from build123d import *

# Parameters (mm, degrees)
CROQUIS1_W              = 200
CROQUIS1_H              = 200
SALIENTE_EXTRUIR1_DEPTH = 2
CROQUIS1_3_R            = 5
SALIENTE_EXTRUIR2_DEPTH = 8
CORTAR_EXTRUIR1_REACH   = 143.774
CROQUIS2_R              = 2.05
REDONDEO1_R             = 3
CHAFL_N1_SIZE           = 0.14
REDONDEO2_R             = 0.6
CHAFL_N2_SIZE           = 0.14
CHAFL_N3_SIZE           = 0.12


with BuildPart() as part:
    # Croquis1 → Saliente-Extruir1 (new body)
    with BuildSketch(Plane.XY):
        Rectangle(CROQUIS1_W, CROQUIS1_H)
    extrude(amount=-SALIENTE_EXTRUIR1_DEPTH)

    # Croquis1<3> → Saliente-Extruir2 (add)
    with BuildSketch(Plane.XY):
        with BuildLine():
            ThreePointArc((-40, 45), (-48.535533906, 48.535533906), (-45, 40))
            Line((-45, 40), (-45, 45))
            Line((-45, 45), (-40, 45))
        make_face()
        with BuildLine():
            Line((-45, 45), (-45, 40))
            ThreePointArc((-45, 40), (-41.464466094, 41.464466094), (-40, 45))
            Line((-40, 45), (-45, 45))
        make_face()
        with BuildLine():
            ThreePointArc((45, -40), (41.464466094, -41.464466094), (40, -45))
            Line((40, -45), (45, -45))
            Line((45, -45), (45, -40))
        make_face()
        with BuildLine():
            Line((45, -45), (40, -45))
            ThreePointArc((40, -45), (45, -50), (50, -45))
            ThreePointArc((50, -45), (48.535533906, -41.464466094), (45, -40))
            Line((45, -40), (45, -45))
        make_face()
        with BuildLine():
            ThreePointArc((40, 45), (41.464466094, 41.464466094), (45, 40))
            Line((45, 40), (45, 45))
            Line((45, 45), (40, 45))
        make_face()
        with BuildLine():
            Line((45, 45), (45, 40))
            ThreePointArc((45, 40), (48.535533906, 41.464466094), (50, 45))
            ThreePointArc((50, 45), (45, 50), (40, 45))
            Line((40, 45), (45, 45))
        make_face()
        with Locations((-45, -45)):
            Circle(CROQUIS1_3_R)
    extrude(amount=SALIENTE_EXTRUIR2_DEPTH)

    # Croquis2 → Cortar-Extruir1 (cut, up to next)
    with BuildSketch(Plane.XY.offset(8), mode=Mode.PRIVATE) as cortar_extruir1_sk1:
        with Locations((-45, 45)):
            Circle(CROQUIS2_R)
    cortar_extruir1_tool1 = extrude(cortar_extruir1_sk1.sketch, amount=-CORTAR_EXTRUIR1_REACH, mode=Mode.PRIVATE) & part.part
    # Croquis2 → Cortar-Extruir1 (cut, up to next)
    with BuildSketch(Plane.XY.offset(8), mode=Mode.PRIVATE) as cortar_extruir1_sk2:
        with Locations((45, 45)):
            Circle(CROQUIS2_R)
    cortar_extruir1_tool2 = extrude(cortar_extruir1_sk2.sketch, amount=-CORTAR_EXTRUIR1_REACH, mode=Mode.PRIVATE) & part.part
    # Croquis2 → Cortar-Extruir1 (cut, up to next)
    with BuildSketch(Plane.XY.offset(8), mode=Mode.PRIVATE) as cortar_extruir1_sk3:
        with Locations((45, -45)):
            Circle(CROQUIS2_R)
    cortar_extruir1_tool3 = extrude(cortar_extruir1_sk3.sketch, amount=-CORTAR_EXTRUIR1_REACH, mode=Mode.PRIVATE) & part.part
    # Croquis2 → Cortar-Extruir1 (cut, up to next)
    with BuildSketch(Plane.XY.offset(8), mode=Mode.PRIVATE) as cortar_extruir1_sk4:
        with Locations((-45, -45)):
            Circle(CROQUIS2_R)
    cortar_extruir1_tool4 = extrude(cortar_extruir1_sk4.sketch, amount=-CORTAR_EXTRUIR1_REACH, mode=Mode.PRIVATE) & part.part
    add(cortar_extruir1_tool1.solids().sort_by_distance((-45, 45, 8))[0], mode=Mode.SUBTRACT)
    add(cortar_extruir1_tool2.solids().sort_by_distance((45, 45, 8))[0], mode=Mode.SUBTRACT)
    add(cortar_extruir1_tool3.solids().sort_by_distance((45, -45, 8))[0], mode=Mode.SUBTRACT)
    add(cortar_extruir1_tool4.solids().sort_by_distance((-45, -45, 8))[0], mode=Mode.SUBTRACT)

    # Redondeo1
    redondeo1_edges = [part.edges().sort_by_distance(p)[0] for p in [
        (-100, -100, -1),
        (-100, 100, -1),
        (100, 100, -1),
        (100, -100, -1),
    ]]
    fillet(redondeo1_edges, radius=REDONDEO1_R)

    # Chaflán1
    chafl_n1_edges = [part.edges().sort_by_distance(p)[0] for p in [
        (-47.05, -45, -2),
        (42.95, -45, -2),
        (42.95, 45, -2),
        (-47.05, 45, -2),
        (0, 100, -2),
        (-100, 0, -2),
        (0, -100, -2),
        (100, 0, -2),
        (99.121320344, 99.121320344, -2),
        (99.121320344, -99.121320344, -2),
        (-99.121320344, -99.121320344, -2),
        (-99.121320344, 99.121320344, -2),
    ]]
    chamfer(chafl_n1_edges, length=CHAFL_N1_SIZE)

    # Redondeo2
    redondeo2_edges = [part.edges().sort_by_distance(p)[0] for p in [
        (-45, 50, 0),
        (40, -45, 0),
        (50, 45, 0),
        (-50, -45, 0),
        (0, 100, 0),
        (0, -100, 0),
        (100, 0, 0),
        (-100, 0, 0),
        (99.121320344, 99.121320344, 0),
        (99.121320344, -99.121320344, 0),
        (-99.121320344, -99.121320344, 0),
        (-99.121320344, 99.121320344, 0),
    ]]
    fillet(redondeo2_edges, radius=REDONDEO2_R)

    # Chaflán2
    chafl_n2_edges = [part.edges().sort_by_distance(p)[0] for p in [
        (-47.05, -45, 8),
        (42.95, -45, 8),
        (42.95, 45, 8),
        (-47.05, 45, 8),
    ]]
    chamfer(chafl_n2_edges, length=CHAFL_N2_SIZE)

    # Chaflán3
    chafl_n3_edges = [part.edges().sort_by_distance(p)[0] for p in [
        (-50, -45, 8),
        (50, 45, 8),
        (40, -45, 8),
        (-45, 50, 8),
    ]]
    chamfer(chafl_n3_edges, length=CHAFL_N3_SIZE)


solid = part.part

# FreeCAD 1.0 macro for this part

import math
import FreeCAD as App
import Part
import Sketcher

V = App.Vector
Q = App.Units.Quantity


def edges_at(feature, points):
    """Names of the edges that pass closest to the given points."""
    edges = feature.Shape.Edges
    near = lambda p: min(range(len(edges)), key=lambda i: edges[i].distToShape(Part.Vertex(*p))[0])
    return sorted({f"Edge{near(p) + 1}" for p in points})


def add_polygon(sketch, points):
    """Adds a closed chain of lines whose ends are joined by coincident constraints."""
    first, n = sketch.GeometryCount, len(points)
    for a, b in zip(points, points[1:] + points[:1]):
        sketch.addGeometry(Part.LineSegment(App.Vector(*a, 0), App.Vector(*b, 0)), False)
    for i in range(n):
        sketch.addConstraint(Sketcher.Constraint("Coincident", first + i, 2, first + (i + 1) % n, 1))

doc = App.newDocument("Part")
params = doc.addObject("Spreadsheet::Sheet", "Params")
for row, (alias, value) in enumerate([
    ("sketch1_width", "200 mm"),
    ("pad1_length", "2 mm"),
    ("sketch2_diameter", "10 mm"),
    ("pad2_length", "8 mm"),
    ("sketch3_diameter", "4.1 mm"),
    ("sketch4_diameter", "4.1 mm"),
    ("sketch5_diameter", "4.1 mm"),
    ("sketch6_diameter", "4.1 mm"),
    ("fillet_radius", "3 mm"),
    ("chamfer_size", "0.14 mm"),
    ("fillet2_radius", "0.6 mm"),
    ("chamfer2_size", "0.14 mm"),
    ("chamfer3_size", "0.12 mm"),
], start=1):
    params.set(f"A{row}", alias)
    params.set(f"B{row}", "=" + value)
    params.setAlias(f"B{row}", alias)

body = doc.addObject("PartDesign::Body", "Body")

# Sketch on XY plane
sketch1 = doc.addObject("Sketcher::SketchObject", "Sketch")
body.addObject(sketch1)
sketch1.AttachmentSupport = (doc.XY_Plane, [""])
sketch1.MapMode = "FlatFace"
add_polygon(sketch1, [(-100, 100), (-100, -100), (100, -100), (100, 100)])  # lines 0-3
sketch1.addConstraint(Sketcher.Constraint("Vertical", 0))
sketch1.addConstraint(Sketcher.Constraint("Horizontal", 1))
sketch1.addConstraint(Sketcher.Constraint("Vertical", 2))
sketch1.addConstraint(Sketcher.Constraint("Horizontal", 3))
sketch1.addConstraint(Sketcher.Constraint("Symmetric", 0, 2, 2, 2, -1, 1))
sketch1.addConstraint(Sketcher.Constraint("Equal", 3, 0))
sketch1.addConstraint(Sketcher.Constraint("DistanceX", 1, 1, 1, 2, Q("200 mm")))
sketch1.setExpression("Constraints[10]", "Params.sketch1_width")
pad1 = doc.addObject("PartDesign::Pad", "Pad")
body.addObject(pad1)
pad1.Profile = sketch1
pad1.setExpression("Length", "Params.pad1_length")
pad1.Reversed = True

# Sketch on XY plane
sketch2 = doc.addObject("Sketcher::SketchObject", "Sketch001")
body.addObject(sketch2)
sketch2.AttachmentSupport = (doc.XY_Plane, [""])
sketch2.MapMode = "FlatFace"
sketch2.addGeometry(Part.ArcOfCircle(Part.Circle(V(-45, 45, 0), V(0, 0, 1), 5), math.radians(0), math.radians(270)), False)
sketch2.addGeometry(Part.ArcOfCircle(Part.Circle(V(-45, 45, 0), V(0, 0, 1), 5), math.radians(-90), math.radians(0)), False)
sketch2.addGeometry(Part.ArcOfCircle(Part.Circle(V(45, -45, 0), V(0, 0, 1), 5), math.radians(90), math.radians(180)), False)
sketch2.addGeometry(Part.ArcOfCircle(Part.Circle(V(45, -45, 0), V(0, 0, 1), 5), math.radians(180), math.radians(360)), False)
sketch2.addGeometry(Part.ArcOfCircle(Part.Circle(V(45, -45, 0), V(0, 0, 1), 5), math.radians(0), math.radians(90)), False)
sketch2.addGeometry(Part.ArcOfCircle(Part.Circle(V(45, 45, 0), V(0, 0, 1), 5), math.radians(180), math.radians(270)), False)
sketch2.addGeometry(Part.ArcOfCircle(Part.Circle(V(45, 45, 0), V(0, 0, 1), 5), math.radians(-90), math.radians(0)), False)
sketch2.addGeometry(Part.ArcOfCircle(Part.Circle(V(45, 45, 0), V(0, 0, 1), 5), math.radians(0), math.radians(180)), False)
sketch2.addGeometry(Part.Circle(V(-45, -45, 0), V(0, 0, 1), 5), False)
sketch2.addConstraint(Sketcher.Constraint("Tangent", 0, 1, 1, 2))
sketch2.addConstraint(Sketcher.Constraint("Coincident", 1, 1, 0, 2))
sketch2.addConstraint(Sketcher.Constraint("Tangent", 2, 2, 3, 1))
sketch2.addConstraint(Sketcher.Constraint("Tangent", 3, 2, 4, 1))
sketch2.addConstraint(Sketcher.Constraint("Tangent", 4, 2, 2, 1))
sketch2.addConstraint(Sketcher.Constraint("Tangent", 5, 2, 6, 1))
sketch2.addConstraint(Sketcher.Constraint("Tangent", 6, 2, 7, 1))
sketch2.addConstraint(Sketcher.Constraint("Tangent", 7, 2, 5, 1))
sketch2.addConstraint(Sketcher.Constraint("Equal", 1, 2))
sketch2.addConstraint(Sketcher.Constraint("Equal", 4, 5))
sketch2.addConstraint(Sketcher.Constraint("Equal", 7, 8))
sketch2.addConstraint(Sketcher.Constraint("Symmetric", 0, 3, 2, 3, -1, 1))
sketch2.addConstraint(Sketcher.Constraint("Symmetric", 5, 3, 8, 3, -1, 1))
sketch2.addConstraint(Sketcher.Constraint("Symmetric", 0, 3, 5, 3, -2))
sketch2.addConstraint(Sketcher.Constraint("Horizontal", 7, 3, 0, 1))
sketch2.addConstraint(Sketcher.Constraint("Horizontal", 8, 3, 2, 2))
sketch2.addConstraint(Sketcher.Constraint("Horizontal", 2, 2, 3, 2))
sketch2.addConstraint(Sketcher.Constraint("Horizontal", 0, 1, 6, 2))
sketch2.addConstraint(Sketcher.Constraint("Horizontal", 6, 2, 7, 2))
sketch2.addConstraint(Sketcher.Constraint("Vertical", 8, 3, 1, 1))
sketch2.addConstraint(Sketcher.Constraint("Vertical", 7, 3, 4, 2))
sketch2.addConstraint(Sketcher.Constraint("Vertical", 4, 2, 5, 2))
sketch2.addConstraint(Sketcher.Constraint("Diameter", 8, Q("10 mm")))
sketch2.addConstraint(Sketcher.Constraint("DistanceX", 0, 3, -1, 1, Q("45 mm")))
sketch2.addConstraint(Sketcher.Constraint("DistanceY", -1, 1, 0, 3, Q("45 mm")))
sketch2.setExpression("Constraints[22]", "Params.sketch2_diameter")
pad2 = doc.addObject("PartDesign::Pad", "Pad001")
body.addObject(pad2)
pad2.Profile = sketch2
pad2.setExpression("Length", "Params.pad2_length")

# Sketch on XY plane
sketch3 = doc.addObject("Sketcher::SketchObject", "Sketch002")
body.addObject(sketch3)
sketch3.AttachmentSupport = (doc.XY_Plane, [""])
sketch3.MapMode = "FlatFace"
sketch3.AttachmentOffset = App.Placement(V(0, 0, 8), App.Rotation())
sketch3.addGeometry(Part.Circle(V(-45, 45, 0), V(0, 0, 1), 2.05), False)
sketch3.addConstraint(Sketcher.Constraint("Diameter", 0, Q("4.1 mm")))
sketch3.addConstraint(Sketcher.Constraint("DistanceX", 0, 3, -1, 1, Q("45 mm")))
sketch3.addConstraint(Sketcher.Constraint("DistanceY", -1, 1, 0, 3, Q("45 mm")))
sketch3.setExpression("Constraints[0]", "Params.sketch3_diameter")
pocket1 = doc.addObject("PartDesign::Pocket", "Pocket")
body.addObject(pocket1)
pocket1.Profile = sketch3
pocket1.Type = "UpToFirst"

# Sketch on XY plane
sketch4 = doc.addObject("Sketcher::SketchObject", "Sketch003")
body.addObject(sketch4)
sketch4.AttachmentSupport = (doc.XY_Plane, [""])
sketch4.MapMode = "FlatFace"
sketch4.AttachmentOffset = App.Placement(V(0, 0, 8), App.Rotation())
sketch4.addGeometry(Part.Circle(V(45, 45, 0), V(0, 0, 1), 2.05), False)
sketch4.addConstraint(Sketcher.Constraint("Diameter", 0, Q("4.1 mm")))
sketch4.addConstraint(Sketcher.Constraint("DistanceX", -1, 1, 0, 3, Q("45 mm")))
sketch4.addConstraint(Sketcher.Constraint("DistanceY", -1, 1, 0, 3, Q("45 mm")))
sketch4.setExpression("Constraints[0]", "Params.sketch4_diameter")
pocket2 = doc.addObject("PartDesign::Pocket", "Pocket001")
body.addObject(pocket2)
pocket2.Profile = sketch4
pocket2.Type = "UpToFirst"

# Sketch on XY plane
sketch5 = doc.addObject("Sketcher::SketchObject", "Sketch004")
body.addObject(sketch5)
sketch5.AttachmentSupport = (doc.XY_Plane, [""])
sketch5.MapMode = "FlatFace"
sketch5.AttachmentOffset = App.Placement(V(0, 0, 8), App.Rotation())
sketch5.addGeometry(Part.Circle(V(45, -45, 0), V(0, 0, 1), 2.05), False)
sketch5.addConstraint(Sketcher.Constraint("Diameter", 0, Q("4.1 mm")))
sketch5.addConstraint(Sketcher.Constraint("DistanceX", -1, 1, 0, 3, Q("45 mm")))
sketch5.addConstraint(Sketcher.Constraint("DistanceY", 0, 3, -1, 1, Q("45 mm")))
sketch5.setExpression("Constraints[0]", "Params.sketch5_diameter")
pocket3 = doc.addObject("PartDesign::Pocket", "Pocket002")
body.addObject(pocket3)
pocket3.Profile = sketch5
pocket3.Type = "UpToFirst"

# Sketch on XY plane
sketch6 = doc.addObject("Sketcher::SketchObject", "Sketch005")
body.addObject(sketch6)
sketch6.AttachmentSupport = (doc.XY_Plane, [""])
sketch6.MapMode = "FlatFace"
sketch6.AttachmentOffset = App.Placement(V(0, 0, 8), App.Rotation())
sketch6.addGeometry(Part.Circle(V(-45, -45, 0), V(0, 0, 1), 2.05), False)
sketch6.addConstraint(Sketcher.Constraint("Diameter", 0, Q("4.1 mm")))
sketch6.addConstraint(Sketcher.Constraint("DistanceX", 0, 3, -1, 1, Q("45 mm")))
sketch6.addConstraint(Sketcher.Constraint("DistanceY", 0, 3, -1, 1, Q("45 mm")))
sketch6.setExpression("Constraints[0]", "Params.sketch6_diameter")
pocket4 = doc.addObject("PartDesign::Pocket", "Pocket003")
body.addObject(pocket4)
pocket4.Profile = sketch6
pocket4.Type = "UpToFirst"
doc.recompute()

fillet = doc.addObject("PartDesign::Fillet", "Fillet")
body.addObject(fillet)
fillet.Base = (pocket4, edges_at(pocket4, [
    (-100, -100, -1),
    (-100, 100, -1),
    (100, 100, -1),
    (100, -100, -1),
]))
fillet.setExpression("Radius", "Params.fillet_radius")
doc.recompute()

chamfer = doc.addObject("PartDesign::Chamfer", "Chamfer")
body.addObject(chamfer)
chamfer.Base = (fillet, edges_at(fillet, [
    (-47.05, -45, -2),
    (42.95, -45, -2),
    (42.95, 45, -2),
    (-47.05, 45, -2),
    (0, 100, -2),
    (-100, 0, -2),
    (0, -100, -2),
    (100, 0, -2),
    (99.121, 99.121, -2),
    (99.121, -99.121, -2),
    (-99.121, -99.121, -2),
    (-99.121, 99.121, -2),
]))
chamfer.setExpression("Size", "Params.chamfer_size")
doc.recompute()

fillet2 = doc.addObject("PartDesign::Fillet", "Fillet001")
body.addObject(fillet2)
fillet2.Base = (chamfer, edges_at(chamfer, [
    (-48.536, 48.536, 0),
    (41.464, -41.464, 0),
    (48.536, 41.464, 0),
    (-50, -45, 0),
    (0, 100, 0),
    (0, -100, 0),
    (100, 0, 0),
    (-100, 0, 0),
    (99.121, 99.121, 0),
    (99.121, -99.121, 0),
    (-99.121, -99.121, 0),
    (-99.121, 99.121, 0),
]))
fillet2.setExpression("Radius", "Params.fillet2_radius")
doc.recompute()

chamfer2 = doc.addObject("PartDesign::Chamfer", "Chamfer001")
body.addObject(chamfer2)
chamfer2.Base = (fillet2, edges_at(fillet2, [
    (-47.05, -45, 8),
    (42.95, -45, 8),
    (42.95, 45, 8),
    (-47.05, 45, 8),
]))
chamfer2.setExpression("Size", "Params.chamfer2_size")
doc.recompute()

chamfer3 = doc.addObject("PartDesign::Chamfer", "Chamfer002")
body.addObject(chamfer3)
chamfer3.Base = (chamfer2, edges_at(chamfer2, [
    (-50, -45, 8),
    (45, 50, 8),
    (41.464, -41.464, 8),
    (-48.536, 48.536, 8),
]))
chamfer3.setExpression("Size", "Params.chamfer3_size")

doc.recompute()
